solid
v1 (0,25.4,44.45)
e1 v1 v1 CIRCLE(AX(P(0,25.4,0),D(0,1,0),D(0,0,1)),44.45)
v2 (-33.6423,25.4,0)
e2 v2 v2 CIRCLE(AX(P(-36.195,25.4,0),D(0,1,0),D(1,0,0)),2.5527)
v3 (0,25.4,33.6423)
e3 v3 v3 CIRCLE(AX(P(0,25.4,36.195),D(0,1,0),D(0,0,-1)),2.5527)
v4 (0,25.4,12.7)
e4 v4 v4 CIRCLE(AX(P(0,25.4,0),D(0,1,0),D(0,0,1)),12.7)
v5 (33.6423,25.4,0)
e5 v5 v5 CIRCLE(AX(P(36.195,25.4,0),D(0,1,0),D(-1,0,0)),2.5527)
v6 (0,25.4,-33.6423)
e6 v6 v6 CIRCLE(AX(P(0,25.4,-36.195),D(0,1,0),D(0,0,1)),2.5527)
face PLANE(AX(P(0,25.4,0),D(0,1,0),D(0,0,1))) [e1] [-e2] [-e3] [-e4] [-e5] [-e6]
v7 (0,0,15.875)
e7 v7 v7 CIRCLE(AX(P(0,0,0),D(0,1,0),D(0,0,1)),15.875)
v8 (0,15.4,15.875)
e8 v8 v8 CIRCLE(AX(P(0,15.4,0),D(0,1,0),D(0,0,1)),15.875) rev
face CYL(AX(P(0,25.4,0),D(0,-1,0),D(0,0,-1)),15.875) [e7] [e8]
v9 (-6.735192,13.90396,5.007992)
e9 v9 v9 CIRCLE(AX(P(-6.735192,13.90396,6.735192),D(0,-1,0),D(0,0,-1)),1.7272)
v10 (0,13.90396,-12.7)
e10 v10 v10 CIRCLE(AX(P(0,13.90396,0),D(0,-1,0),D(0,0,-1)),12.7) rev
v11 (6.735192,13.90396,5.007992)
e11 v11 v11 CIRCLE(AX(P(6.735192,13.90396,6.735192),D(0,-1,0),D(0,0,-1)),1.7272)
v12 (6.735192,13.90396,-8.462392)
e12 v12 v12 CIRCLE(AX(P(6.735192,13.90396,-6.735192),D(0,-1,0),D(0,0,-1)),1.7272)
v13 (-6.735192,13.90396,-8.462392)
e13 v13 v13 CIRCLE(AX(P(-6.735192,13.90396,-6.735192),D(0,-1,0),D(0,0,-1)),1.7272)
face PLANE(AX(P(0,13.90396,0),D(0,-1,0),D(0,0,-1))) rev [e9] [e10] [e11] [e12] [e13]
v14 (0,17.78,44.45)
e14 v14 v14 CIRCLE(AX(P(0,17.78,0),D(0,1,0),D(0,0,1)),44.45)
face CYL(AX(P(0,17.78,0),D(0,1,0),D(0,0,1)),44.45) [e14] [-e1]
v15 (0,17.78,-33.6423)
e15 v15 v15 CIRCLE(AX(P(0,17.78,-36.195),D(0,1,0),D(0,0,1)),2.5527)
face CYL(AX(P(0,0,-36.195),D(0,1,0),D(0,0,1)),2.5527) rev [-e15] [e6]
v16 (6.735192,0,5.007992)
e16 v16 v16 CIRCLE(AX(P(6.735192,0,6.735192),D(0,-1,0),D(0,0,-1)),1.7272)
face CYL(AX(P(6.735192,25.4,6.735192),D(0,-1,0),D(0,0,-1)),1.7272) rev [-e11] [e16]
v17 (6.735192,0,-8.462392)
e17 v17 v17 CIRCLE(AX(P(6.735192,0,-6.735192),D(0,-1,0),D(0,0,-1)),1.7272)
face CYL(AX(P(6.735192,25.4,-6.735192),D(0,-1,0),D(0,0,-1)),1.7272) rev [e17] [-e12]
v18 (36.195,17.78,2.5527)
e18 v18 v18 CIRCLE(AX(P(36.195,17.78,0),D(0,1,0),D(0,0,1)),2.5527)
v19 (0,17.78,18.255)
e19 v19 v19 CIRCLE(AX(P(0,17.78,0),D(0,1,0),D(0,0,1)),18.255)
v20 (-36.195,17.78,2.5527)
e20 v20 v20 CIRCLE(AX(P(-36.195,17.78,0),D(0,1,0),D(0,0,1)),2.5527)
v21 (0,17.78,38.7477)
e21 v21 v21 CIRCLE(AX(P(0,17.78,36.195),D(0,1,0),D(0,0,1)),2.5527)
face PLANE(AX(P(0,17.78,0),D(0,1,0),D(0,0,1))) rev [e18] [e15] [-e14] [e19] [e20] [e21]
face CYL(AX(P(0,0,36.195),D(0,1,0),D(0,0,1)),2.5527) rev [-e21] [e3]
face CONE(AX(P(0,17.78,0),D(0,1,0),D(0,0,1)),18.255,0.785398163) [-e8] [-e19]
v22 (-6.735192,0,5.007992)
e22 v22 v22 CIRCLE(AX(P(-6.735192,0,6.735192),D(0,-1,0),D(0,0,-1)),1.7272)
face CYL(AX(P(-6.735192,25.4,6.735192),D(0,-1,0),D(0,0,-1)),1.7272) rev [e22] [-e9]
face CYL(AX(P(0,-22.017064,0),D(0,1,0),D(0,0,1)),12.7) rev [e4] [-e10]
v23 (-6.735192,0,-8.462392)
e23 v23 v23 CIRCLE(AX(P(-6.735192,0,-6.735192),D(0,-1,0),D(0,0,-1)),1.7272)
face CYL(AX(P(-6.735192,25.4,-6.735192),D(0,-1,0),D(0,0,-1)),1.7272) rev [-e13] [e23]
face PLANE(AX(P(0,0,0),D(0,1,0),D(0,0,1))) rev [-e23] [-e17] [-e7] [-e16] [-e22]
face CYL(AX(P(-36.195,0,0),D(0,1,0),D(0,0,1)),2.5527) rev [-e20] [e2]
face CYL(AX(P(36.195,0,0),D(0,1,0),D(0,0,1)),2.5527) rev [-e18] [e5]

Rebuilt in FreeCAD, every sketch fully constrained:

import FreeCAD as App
import Part
import Sketcher
Q = App.Units.Quantity


def edges_at(feature, points):
    """Names of the edges that pass closest to the given points."""
    edges = feature.Shape.Edges
    near = lambda p: min(range(len(edges)), key=lambda i: edges[i].distToShape(Part.Vertex(*p))[0])
    return sorted({f"Edge{near(p) + 1}" for p in points})

doc = App.newDocument("Part")
params = doc.addObject("Spreadsheet::Sheet", "Params")
for row, (alias, value) in enumerate([
    ("sketch1_diameter", "1.25 in"),
    ("pad1_length", "1 in"),
    ("sketch2_diameter", "3.5 in"),
    ("pad2_length", "0.3 in"),
    ("sketch3_diameter", "0.201 in"),
    ("sketch4_diameter", "1 in"),
    ("pocket2_length", "0.4526 in"),
    ("chamfer_size", "2.38 mm"),
    ("sketch5_diameter", "0.136 in"),
], start=1):
    params.set(f"A{row}", alias)
    params.set(f"B{row}", "=" + value)
    params.setAlias(f"B{row}", alias)

body = doc.addObject("PartDesign::Body", "Body")

# Sketch on XZ plane
sketch1 = body.newObject("Sketcher::SketchObject", "Sketch")
sketch1.AttachmentSupport = (doc.getObject("XZ_Plane"), [""])
sketch1.MapMode = "FlatFace"
sketch1.addGeometry(Part.Circle(App.Vector(0, 0, 0), App.Vector(0, 0, 1), 16), False)
sketch1.addConstraint([
    Sketcher.Constraint("Coincident", 0, 3, -1, 1),
    Sketcher.Constraint("Diameter", 0, Q("1.25 in")),
])
sketch1.setExpression("Constraints[1]", "Params.sketch1_diameter")
pad1 = body.newObject("PartDesign::Pad", "Pad")
pad1.Profile = sketch1
pad1.setExpression("Length", "Params.pad1_length")
pad1.Reversed = True

# Sketch on XZ plane
sketch2 = body.newObject("Sketcher::SketchObject", "Sketch001")
sketch2.AttachmentSupport = (doc.getObject("XZ_Plane"), [""])
sketch2.MapMode = "FlatFace"
sketch2.AttachmentOffset = App.Placement(App.Vector(0, 0, -1 * 25.4), App.Rotation())
sketch2.addGeometry(Part.Circle(App.Vector(0, 0, 0), App.Vector(0, 0, 1), 44), False)
sketch2.addConstraint([
    Sketcher.Constraint("Coincident", 0, 3, -1, 1),
    Sketcher.Constraint("Diameter", 0, Q("3.5 in")),
])
sketch2.setExpression("Constraints[1]", "Params.sketch2_diameter")
pad2 = body.newObject("PartDesign::Pad", "Pad001")
pad2.Profile = sketch2
pad2.setExpression("Length", "Params.pad2_length")

# Sketch on XZ plane
sketch3 = body.newObject("Sketcher::SketchObject", "Sketch002")
sketch3.AttachmentSupport = (doc.getObject("XZ_Plane"), [""])
sketch3.MapMode = "FlatFace"
sketch3.AttachmentOffset = App.Placement(App.Vector(0, 0, -1 * 25.4), App.Rotation())
sketch3.addGeometry(Part.Circle(App.Vector(0, -36.2, 0), App.Vector(0, 0, 1), 2.6), False)
sketch3.addConstraint([
    Sketcher.Constraint("PointOnObject", 0, 3, -2),
    Sketcher.Constraint("Diameter", 0, Q("0.201 in")),
    Sketcher.Constraint("DistanceY", 0, 3, -1, 1, Q("1.425 in")),
])
sketch3.setExpression("Constraints[1]", "Params.sketch3_diameter")
pocket1 = body.newObject("PartDesign::Pocket", "Pocket")
pocket1.Profile = sketch3
pocket1.Type = "ThroughAll"
pocket1.Reversed = True
doc.recompute()

polarpattern = body.newObject("PartDesign::PolarPattern", "PolarPattern")
polarpattern.Originals = [pocket1]
polarpattern.Axis = (doc.getObject("Y_Axis"), [""])
polarpattern.Angle = 360
polarpattern.Occurrences = 4
body.Tip = polarpattern

# Sketch on XZ plane
sketch4 = body.newObject("Sketcher::SketchObject", "Sketch003")
sketch4.AttachmentSupport = (doc.getObject("XZ_Plane"), [""])
sketch4.MapMode = "FlatFace"
sketch4.AttachmentOffset = App.Placement(App.Vector(0, 0, -0.5474 * 25.4), App.Rotation())
sketch4.addGeometry(Part.Circle(App.Vector(0, 0, 0), App.Vector(0, 0, 1), 13), False)
sketch4.addConstraint([
    Sketcher.Constraint("Coincident", 0, 3, -1, 1),
    Sketcher.Constraint("Diameter", 0, Q("1 in")),
])
sketch4.setExpression("Constraints[1]", "Params.sketch4_diameter")
pocket2 = body.newObject("PartDesign::Pocket", "Pocket001")
pocket2.Profile = sketch4
pocket2.setExpression("Length", "Params.pocket2_length")
doc.recompute()

chamfer = body.newObject("PartDesign::Chamfer", "Chamfer")
chamfer.Base = (pocket2, edges_at(pocket2, [(-15.875, 17.78, 0)]))
chamfer.setExpression("Size", "Params.chamfer_size")

# Sketch on XZ plane
sketch5 = body.newObject("Sketcher::SketchObject", "Sketch004")
sketch5.AttachmentSupport = (doc.getObject("XZ_Plane"), [""])
sketch5.MapMode = "FlatFace"
sketch5.addGeometry([
    Part.Circle(App.Vector(6.7, -6.7, 0), App.Vector(0, 0, 1), 1.7),
    Part.Circle(App.Vector(-6.7, -6.7, 0), App.Vector(0, 0, 1), 1.7),
    Part.Circle(App.Vector(-6.7, 6.7, 0), App.Vector(0, 0, 1), 1.7),
    Part.Circle(App.Vector(6.7, 6.7, 0), App.Vector(0, 0, 1), 1.7),
], False)
sketch5.addConstraint([
    Sketcher.Constraint("Equal", 0, 1),
    Sketcher.Constraint("Equal", 1, 2),
    Sketcher.Constraint("Equal", 2, 3),
    Sketcher.Constraint("Symmetric", 0, 3, 2, 3, -1, 1),
    Sketcher.Constraint("Symmetric", 1, 3, 3, 3, -1, 1),
    Sketcher.Constraint("Symmetric", 0, 3, 1, 3, -2),
    Sketcher.Constraint("Diameter", 0, Q("0.136 in")),
    Sketcher.Constraint("DistanceX", -1, 1, 0, 3, 6.735192),
    Sketcher.Constraint("DistanceY", 0, 3, -1, 1, 6.735192),
])
sketch5.setExpression("Constraints[6]", "Params.sketch5_diameter")
pocket3 = body.newObject("PartDesign::Pocket", "Pocket002")
pocket3.Profile = sketch5
pocket3.Type = "ThroughAll"

doc.recompute()
